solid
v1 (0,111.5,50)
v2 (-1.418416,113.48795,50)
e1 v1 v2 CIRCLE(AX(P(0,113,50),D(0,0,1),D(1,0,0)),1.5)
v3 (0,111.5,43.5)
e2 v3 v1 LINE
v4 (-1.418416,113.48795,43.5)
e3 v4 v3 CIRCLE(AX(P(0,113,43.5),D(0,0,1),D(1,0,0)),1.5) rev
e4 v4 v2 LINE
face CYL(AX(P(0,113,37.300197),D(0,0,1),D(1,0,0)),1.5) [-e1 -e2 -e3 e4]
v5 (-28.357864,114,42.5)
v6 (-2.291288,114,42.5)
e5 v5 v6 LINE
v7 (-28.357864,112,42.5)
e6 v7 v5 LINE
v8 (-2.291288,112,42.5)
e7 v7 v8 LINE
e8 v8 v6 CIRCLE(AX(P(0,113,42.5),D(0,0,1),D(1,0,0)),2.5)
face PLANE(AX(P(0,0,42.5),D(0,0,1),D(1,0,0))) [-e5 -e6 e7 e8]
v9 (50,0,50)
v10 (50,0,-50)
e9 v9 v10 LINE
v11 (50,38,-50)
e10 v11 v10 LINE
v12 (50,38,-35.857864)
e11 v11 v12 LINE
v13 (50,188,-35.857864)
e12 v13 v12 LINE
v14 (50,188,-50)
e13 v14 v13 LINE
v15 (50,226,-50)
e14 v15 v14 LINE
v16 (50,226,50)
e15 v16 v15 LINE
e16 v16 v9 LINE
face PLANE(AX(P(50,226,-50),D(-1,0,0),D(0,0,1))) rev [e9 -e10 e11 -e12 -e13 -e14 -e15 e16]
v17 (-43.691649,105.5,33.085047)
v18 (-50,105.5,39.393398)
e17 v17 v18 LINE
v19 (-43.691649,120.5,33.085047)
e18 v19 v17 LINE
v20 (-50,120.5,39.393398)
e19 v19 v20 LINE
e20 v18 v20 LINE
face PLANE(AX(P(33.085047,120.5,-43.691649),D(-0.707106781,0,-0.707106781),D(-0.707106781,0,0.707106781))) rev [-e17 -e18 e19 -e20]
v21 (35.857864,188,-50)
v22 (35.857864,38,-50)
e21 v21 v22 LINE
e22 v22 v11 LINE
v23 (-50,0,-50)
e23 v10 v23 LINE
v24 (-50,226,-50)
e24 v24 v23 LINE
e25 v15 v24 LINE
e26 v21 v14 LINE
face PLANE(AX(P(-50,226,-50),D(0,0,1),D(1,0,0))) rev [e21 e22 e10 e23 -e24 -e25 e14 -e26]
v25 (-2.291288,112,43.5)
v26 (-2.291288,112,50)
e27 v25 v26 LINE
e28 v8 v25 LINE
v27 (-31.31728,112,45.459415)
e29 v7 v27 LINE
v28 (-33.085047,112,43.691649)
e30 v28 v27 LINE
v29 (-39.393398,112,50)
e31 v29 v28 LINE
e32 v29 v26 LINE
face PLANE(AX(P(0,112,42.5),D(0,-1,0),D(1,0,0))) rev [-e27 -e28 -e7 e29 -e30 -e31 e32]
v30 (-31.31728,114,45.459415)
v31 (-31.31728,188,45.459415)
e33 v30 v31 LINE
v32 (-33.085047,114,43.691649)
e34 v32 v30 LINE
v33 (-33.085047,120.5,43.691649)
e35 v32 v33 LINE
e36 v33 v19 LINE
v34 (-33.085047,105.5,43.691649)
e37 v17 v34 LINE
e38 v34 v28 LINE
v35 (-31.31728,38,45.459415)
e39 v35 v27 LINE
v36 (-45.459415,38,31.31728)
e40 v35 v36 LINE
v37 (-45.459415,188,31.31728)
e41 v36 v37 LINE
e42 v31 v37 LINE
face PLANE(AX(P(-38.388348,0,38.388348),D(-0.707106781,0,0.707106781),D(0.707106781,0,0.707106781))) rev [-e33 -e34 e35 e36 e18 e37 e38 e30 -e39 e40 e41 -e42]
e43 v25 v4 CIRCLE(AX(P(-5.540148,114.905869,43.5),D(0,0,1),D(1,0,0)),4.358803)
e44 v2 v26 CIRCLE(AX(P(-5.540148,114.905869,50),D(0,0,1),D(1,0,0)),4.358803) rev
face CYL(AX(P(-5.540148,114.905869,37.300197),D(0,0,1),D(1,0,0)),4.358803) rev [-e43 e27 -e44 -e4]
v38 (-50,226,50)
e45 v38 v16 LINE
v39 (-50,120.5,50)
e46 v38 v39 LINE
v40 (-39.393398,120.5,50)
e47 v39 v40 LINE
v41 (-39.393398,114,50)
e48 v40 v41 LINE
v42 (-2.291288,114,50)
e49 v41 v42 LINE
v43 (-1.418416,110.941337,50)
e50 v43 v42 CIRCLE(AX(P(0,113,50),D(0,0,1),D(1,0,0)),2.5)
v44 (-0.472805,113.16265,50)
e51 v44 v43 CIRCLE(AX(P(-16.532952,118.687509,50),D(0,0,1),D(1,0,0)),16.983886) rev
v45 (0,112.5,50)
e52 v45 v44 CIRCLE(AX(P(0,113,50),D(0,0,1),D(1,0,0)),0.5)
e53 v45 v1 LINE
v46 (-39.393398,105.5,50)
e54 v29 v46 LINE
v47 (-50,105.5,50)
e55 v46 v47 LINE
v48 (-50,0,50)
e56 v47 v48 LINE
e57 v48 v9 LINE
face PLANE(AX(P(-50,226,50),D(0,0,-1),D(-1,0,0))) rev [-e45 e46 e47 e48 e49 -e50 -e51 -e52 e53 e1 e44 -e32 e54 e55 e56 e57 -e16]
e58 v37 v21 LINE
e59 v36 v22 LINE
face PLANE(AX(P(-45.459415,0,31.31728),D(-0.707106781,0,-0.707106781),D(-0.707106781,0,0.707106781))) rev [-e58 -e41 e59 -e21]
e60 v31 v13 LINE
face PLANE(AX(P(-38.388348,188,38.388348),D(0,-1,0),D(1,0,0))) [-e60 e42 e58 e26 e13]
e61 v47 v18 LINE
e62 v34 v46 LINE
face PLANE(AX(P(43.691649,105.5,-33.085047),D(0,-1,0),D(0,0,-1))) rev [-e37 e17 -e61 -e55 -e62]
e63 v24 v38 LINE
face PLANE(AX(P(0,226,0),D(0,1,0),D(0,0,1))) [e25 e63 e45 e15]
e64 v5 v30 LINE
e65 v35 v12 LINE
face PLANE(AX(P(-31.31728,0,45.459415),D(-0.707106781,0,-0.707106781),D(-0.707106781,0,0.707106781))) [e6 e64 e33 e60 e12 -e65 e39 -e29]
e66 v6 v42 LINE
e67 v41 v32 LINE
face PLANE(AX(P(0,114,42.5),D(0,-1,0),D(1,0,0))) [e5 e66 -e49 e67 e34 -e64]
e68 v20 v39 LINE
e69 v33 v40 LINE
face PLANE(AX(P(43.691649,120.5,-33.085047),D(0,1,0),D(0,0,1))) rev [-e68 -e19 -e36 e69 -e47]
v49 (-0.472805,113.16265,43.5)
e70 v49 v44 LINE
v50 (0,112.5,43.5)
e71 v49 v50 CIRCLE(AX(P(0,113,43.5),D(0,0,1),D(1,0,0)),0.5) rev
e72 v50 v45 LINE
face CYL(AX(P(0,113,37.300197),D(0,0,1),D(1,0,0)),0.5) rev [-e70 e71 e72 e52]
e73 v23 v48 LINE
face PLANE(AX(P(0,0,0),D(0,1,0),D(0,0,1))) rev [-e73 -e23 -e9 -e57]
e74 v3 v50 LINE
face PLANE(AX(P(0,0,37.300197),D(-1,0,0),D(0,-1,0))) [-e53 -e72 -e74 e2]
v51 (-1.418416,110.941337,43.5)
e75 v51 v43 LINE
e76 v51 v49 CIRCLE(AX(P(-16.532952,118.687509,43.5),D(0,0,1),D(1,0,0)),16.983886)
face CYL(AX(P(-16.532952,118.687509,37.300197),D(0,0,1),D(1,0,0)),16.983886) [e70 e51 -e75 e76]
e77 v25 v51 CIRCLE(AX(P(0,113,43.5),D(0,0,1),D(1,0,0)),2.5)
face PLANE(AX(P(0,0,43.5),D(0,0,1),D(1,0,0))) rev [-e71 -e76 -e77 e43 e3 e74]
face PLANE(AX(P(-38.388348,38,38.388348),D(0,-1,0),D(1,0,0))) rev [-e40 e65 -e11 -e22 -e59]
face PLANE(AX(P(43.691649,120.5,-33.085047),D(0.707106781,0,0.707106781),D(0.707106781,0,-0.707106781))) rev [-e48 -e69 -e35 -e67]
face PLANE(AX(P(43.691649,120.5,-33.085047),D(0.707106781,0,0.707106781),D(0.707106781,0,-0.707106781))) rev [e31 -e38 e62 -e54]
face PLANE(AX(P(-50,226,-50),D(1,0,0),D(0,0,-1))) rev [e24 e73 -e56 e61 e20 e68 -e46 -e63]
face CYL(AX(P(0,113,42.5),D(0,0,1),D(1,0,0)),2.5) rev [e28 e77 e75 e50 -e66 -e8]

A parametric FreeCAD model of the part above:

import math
import FreeCAD as App
import Part
import Sketcher
Q = App.Units.Quantity


def add_polygon(sketch, points):
    """Adds a closed chain of lines whose ends are joined by coincident constraints."""
    first, n = sketch.GeometryCount, len(points)
    for a, b in zip(points, points[1:] + points[:1]):
        sketch.addGeometry(Part.LineSegment(App.Vector(*a, 0), App.Vector(*b, 0)), False)
    for i in range(n):
        sketch.addConstraint(Sketcher.Constraint("Coincident", first + i, 2, first + (i + 1) % n, 1))

doc = App.newDocument("Part")
body = doc.addObject("PartDesign::Body", "Body")

sketch1 = doc.addObject("Sketcher::SketchObject", "Sketch")
body.addObject(sketch1)
sketch1.AttachmentSupport = (doc.XZ_Plane, [""])
sketch1.MapMode = "FlatFace"
add_polygon(sketch1, [(-50, -50), (-50, 50), (50, 50), (50, -50)])
sketch1.addConstraint([
    Sketcher.Constraint("Vertical", 0),
    Sketcher.Constraint("Horizontal", 1),
    Sketcher.Constraint("Vertical", 2),
    Sketcher.Constraint("Horizontal", 3),
    Sketcher.Constraint("Symmetric", 0, 2, 2, 2, -1, 1),
    Sketcher.Constraint("Equal", 3, 0),
    Sketcher.Constraint("DistanceX", 1, 1, 1, 2, Q("100 mm")),
])
pad1 = doc.addObject("PartDesign::Pad", "Pad")
body.addObject(pad1)
pad1.Profile = sketch1
pad1.Length = 226
pad1.Reversed = True

sketch2 = doc.addObject("Sketcher::SketchObject", "Sketch001")
body.addObject(sketch2)
sketch2.Placement = App.Placement(App.Vector(50, 0, -50), App.Rotation(App.Vector(0, -1, 0), App.Vector(0.707106781, 0, 0.707106781), App.Vector(-0.707106781, 0, 0.707106781), "ZXY"))
add_polygon(sketch2, [(-188, -10), (-38, -10), (-38, 10), (-188, 10)])
sketch2.addConstraint([
    Sketcher.Constraint("Horizontal", 0),
    Sketcher.Constraint("Vertical", 1),
    Sketcher.Constraint("Horizontal", 2),
    Sketcher.Constraint("Vertical", 3),
    Sketcher.Constraint("DistanceX", 0, 1, 0, 2, Q("150 mm")),
    Sketcher.Constraint("DistanceY", 1, 1, 1, 2, Q("20 mm")),
    Sketcher.Constraint("DistanceX", 0, 2, -1, 1, Q("38 mm")),
    Sketcher.Constraint("DistanceY", 0, 2, -1, 1, Q("10 mm")),
])
pocket1 = doc.addObject("PartDesign::Pocket", "Pocket")
body.addObject(pocket1)
pocket1.Profile = sketch2
pocket1.Length = 125
pocket1.Reversed = True

sketch3 = doc.addObject("Sketcher::SketchObject", "Sketch002")
body.addObject(sketch3)
sketch3.Placement = App.Placement(App.Vector(-50, 0, 50), App.Rotation(App.Vector(0.707106781, 0, 0.707106781), App.Vector(0, 0.999999999, 0), App.Vector(-0.707106781, 0, 0.707106781), "ZXY"))
add_polygon(sketch3, [(-7, 120), (-7, 105), (7, 105), (7, 120)])
sketch3.addConstraint([
    Sketcher.Constraint("Vertical", 0),
    Sketcher.Constraint("Horizontal", 1),
    Sketcher.Constraint("Vertical", 2),
    Sketcher.Constraint("Horizontal", 3),
    Sketcher.Constraint("Equal", 3, 0),
    Sketcher.Constraint("DistanceX", 1, 1, 1, 2, Q("15 mm")),
    Sketcher.Constraint("DistanceX", 0, 2, -1, 1, Q("7.5 mm")),
    Sketcher.Constraint("DistanceY", -1, 1, 0, 2, Q("105.5 mm")),
])
pocket2 = doc.addObject("PartDesign::Pocket", "Pocket001")
body.addObject(pocket2)
pocket2.Profile = sketch3
pocket2.Length = 125

sketch4 = doc.addObject("Sketcher::SketchObject", "Sketch003")
body.addObject(sketch4)
sketch4.AttachmentSupport = (doc.XY_Plane, [""])
sketch4.MapMode = "FlatFace"
sketch4.AttachmentOffset = App.Placement(App.Vector(0, 0, 50), App.Rotation())
sketch4.addGeometry([
    Part.LineSegment(App.Vector(-39.4, 114, 0), App.Vector(-39.4, 112, 0)),
    Part.LineSegment(App.Vector(-39.4, 112, 0), App.Vector(-2.3, 112, 0)),
    Part.ArcOfCircle(Part.Circle(App.Vector(0, 113, 0), App.Vector(0, 0, 1), 2.5), math.radians(-156), math.radians(156)),
    Part.LineSegment(App.Vector(-2.3, 114, 0), App.Vector(-39.4, 114, 0)),
], False)
sketch4.addConstraint([
    Sketcher.Constraint("Coincident", 0, 2, 1, 1),
    Sketcher.Constraint("Coincident", 1, 2, 2, 1),
    Sketcher.Constraint("Coincident", 2, 2, 3, 1),
    Sketcher.Constraint("Coincident", 3, 2, 0, 1),
    Sketcher.Constraint("Vertical", 0),
    Sketcher.Constraint("Horizontal", 1),
    Sketcher.Constraint("Horizontal", 3),
    Sketcher.Constraint("PointOnObject", 2, 3, -2),
    Sketcher.Constraint("Vertical", 1, 2, 2, 2),
    Sketcher.Constraint("Radius", 2, Q("2.5 mm")),
    Sketcher.Constraint("DistanceY", 0, 2, 0, 1, Q("2 mm")),
    Sketcher.Constraint("DistanceY", -1, 1, 2, 3, Q("113 mm")),
    Sketcher.Constraint("DistanceX", 1, 1, 1, 2, Q("37.10211 mm")),
])
pocket3 = doc.addObject("PartDesign::Pocket", "Pocket002")
body.addObject(pocket3)
pocket3.Profile = sketch4
pocket3.Length = 7.5

sketch5 = doc.addObject("Sketcher::SketchObject", "Sketch004")
body.addObject(sketch5)
sketch5.AttachmentSupport = (doc.XY_Plane, [""])
sketch5.MapMode = "FlatFace"
sketch5.AttachmentOffset = App.Placement(App.Vector(0, 0, 50), App.Rotation())
sketch5.addGeometry([
    Part.ArcOfCircle(Part.Circle(App.Vector(0, 113, 0), App.Vector(0, 0, 1), 0.5), math.radians(-90), math.radians(161)),
    Part.LineSegment(App.Vector(0, 112.5, 0), App.Vector(0, 111.5, 0)),
    Part.ArcOfCircle(Part.Circle(App.Vector(0, 113, 0), App.Vector(0, 0, 1), 1.5), math.radians(-90), math.radians(161)),
    Part.ArcOfCircle(Part.Circle(App.Vector(-5.5, 114.9, 0), App.Vector(0, 0, 1), 4.4), math.radians(-42), math.radians(-19)),
    Part.ArcOfCircle(Part.Circle(App.Vector(0, 113, 0), App.Vector(0, 0, 1), 2.5), math.radians(-156), math.radians(-125)),
    Part.ArcOfCircle(Part.Circle(App.Vector(-16.5, 118.7, 0), App.Vector(0, 0, 1), 17), math.radians(-27.14), math.radians(-18.98)),
], False)
sketch5.addConstraint([
    Sketcher.Constraint("Coincident", 0, 1, 1, 1),
    Sketcher.Constraint("Coincident", 1, 2, 2, 1),
    Sketcher.Constraint("Tangent", 2, 2, 3, 2),
    Sketcher.Constraint("Coincident", 3, 1, 4, 1),
    Sketcher.Constraint("Coincident", 4, 2, 5, 1),
    Sketcher.Constraint("Tangent", 5, 2, 0, 2),
    Sketcher.Constraint("Vertical", 1),
    Sketcher.Constraint("Coincident", 2, 3, 0, 3),
    Sketcher.Constraint("Coincident", 4, 3, 0, 3),
    Sketcher.Constraint("PointOnObject", 0, 3, -2),
    Sketcher.Constraint("PointOnObject", 0, 1, -2),
    Sketcher.Constraint("Vertical", 2, 2, 4, 2),
    Sketcher.Constraint("Radius", 0, Q("0.5 mm")),
    Sketcher.Constraint("Radius", 2, Q("1.5 mm")),
    Sketcher.Constraint("Radius", 4, Q("2.5 mm")),
    Sketcher.Constraint("DistanceY", -1, 1, 0, 3, Q("113 mm")),
    Sketcher.Constraint("DistanceY", -1, 1, 3, 1, Q("112 mm")),
    Sketcher.Constraint("Radius", 3, Q("4.358803 mm")),
    Sketcher.Constraint("Radius", 5, Q("16.983886 mm")),
])
pad2 = doc.addObject("PartDesign::Pad", "Pad001")
body.addObject(pad2)
pad2.Profile = sketch5
pad2.Length = 6.5
pad2.Reversed = True

doc.recompute()
